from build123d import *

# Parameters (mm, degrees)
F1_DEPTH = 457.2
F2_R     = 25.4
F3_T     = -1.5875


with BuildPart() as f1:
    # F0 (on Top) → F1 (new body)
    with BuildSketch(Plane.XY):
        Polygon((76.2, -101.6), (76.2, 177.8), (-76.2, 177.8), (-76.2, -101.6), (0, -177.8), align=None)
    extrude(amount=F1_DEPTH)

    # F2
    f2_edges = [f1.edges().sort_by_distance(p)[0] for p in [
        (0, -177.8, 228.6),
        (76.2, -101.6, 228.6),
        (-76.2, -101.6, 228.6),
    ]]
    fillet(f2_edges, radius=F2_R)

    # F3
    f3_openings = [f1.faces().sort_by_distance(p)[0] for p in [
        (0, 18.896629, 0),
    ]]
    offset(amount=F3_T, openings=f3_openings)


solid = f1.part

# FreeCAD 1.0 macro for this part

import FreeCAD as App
import Part
import Sketcher

V = App.Vector
Q = App.Units.Quantity


def edges_at(feature, points):
    """Names of the edges that pass closest to the given points."""
    edges = feature.Shape.Edges
    near = lambda p: min(range(len(edges)), key=lambda i: edges[i].distToShape(Part.Vertex(*p))[0])
    return sorted({f"Edge{near(p) + 1}" for p in points})


def faces_at(feature, points):
    """Names of the faces that lie closest to the given points."""
    faces = feature.Shape.Faces
    near = lambda p: min(range(len(faces)), key=lambda i: faces[i].distToShape(Part.Vertex(*p))[0])
    return sorted({f"Face{near(p) + 1}" for p in points})

doc = App.newDocument("Part")
body = doc.addObject("PartDesign::Body", "Body")

# Sketch on XY plane
sketch1 = doc.addObject("Sketcher::SketchObject", "Sketch")
body.addObject(sketch1)
sketch1.AttachmentSupport = (doc.XY_Plane, [""])
sketch1.MapMode = "FlatFace"
sketch1.addGeometry([
    Part.LineSegment(V(76, -102, 0), V(76, 178, 0)),  # 0
    Part.LineSegment(V(76, 178, 0), V(-76, 178, 0)),  # 1
    Part.LineSegment(V(-76, 178, 0), V(-76, -102, 0)),  # 2
    Part.LineSegment(V(-76, -102, 0), V(0, -178, 0)),  # 3
    Part.LineSegment(V(0, -178, 0), V(76, -102, 0)),  # 4
], False)
sketch1.addConstraint([
    Sketcher.Constraint("Coincident", 0, 2, 1, 1),
    Sketcher.Constraint("Coincident", 1, 2, 2, 1),
    Sketcher.Constraint("Coincident", 2, 2, 3, 1),
    Sketcher.Constraint("Coincident", 3, 2, 4, 1),
    Sketcher.Constraint("Coincident", 4, 2, 0, 1),
    Sketcher.Constraint("Vertical", 0),
    Sketcher.Constraint("Horizontal", 1),
    Sketcher.Constraint("Vertical", 2),
    Sketcher.Constraint("Symmetric", 2, 2, 4, 2, -2),
    Sketcher.Constraint("PointOnObject", 3, 2, -2),
    Sketcher.Constraint("Perpendicular", 3, 4),
    Sketcher.Constraint("DistanceX", 1, 2, 1, 1, Q("6 in")),
    Sketcher.Constraint("DistanceY", 0, 1, 0, 2, Q("11 in")),
    Sketcher.Constraint("DistanceY", -1, 1, 0, 2, Q("7 in")),
])
pad1 = doc.addObject("PartDesign::Pad", "Pad")
body.addObject(pad1)
pad1.Profile = sketch1
pad1.Length = Q("18 in")
doc.recompute()

fillet = doc.addObject("PartDesign::Fillet", "Fillet")
body.addObject(fillet)
fillet.Base = (pad1, edges_at(pad1, [(0, -177.8, 228.6), (76.2, -101.6, 228.6), (-76.2, -101.6, 228.6)]))
fillet.Radius = Q("1 in")
doc.recompute()

thickness = doc.addObject("PartDesign::Thickness", "Thickness")
body.addObject(thickness)
thickness.Base = (fillet, faces_at(fillet, [(0, 5.261, 0)]))
thickness.Value = Q("0.0625 in")
thickness.Reversed = True
thickness.Join = "Arc"

doc.recompute()
